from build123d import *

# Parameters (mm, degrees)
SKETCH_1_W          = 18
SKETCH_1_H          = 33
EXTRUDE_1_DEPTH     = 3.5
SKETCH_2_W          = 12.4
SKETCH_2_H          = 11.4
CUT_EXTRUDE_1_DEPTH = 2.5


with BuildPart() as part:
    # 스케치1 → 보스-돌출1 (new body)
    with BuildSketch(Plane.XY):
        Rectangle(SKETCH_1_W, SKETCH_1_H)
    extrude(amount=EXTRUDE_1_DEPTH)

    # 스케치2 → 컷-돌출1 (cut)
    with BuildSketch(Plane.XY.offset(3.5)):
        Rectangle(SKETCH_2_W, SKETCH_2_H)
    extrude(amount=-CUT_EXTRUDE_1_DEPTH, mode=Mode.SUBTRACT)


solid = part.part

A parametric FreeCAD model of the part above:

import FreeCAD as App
import Part
import Sketcher

V = App.Vector
Q = App.Units.Quantity

doc = App.newDocument("Part")
body = doc.addObject("PartDesign::Body", "Body")

# Sketch on XY plane
sketch1 = body.newObject("Sketcher::SketchObject", "Sketch")
sketch1.AttachmentSupport = (doc.getObject("XY_Plane"), [""])
sketch1.MapMode = "FlatFace"
sketch1.addGeometry([
    Part.LineSegment(V(-9, 16.5, 0), V(-9, -16.5, 0)),
    Part.LineSegment(V(-9, -16.5, 0), V(9, -16.5, 0)),
    Part.LineSegment(V(9, -16.5, 0), V(9, 16.5, 0)),
    Part.LineSegment(V(9, 16.5, 0), V(-9, 16.5, 0)),
], False)
sketch1.addConstraint([
    Sketcher.Constraint("Coincident", 0, 2, 1, 1),
    Sketcher.Constraint("Coincident", 1, 2, 2, 1),
    Sketcher.Constraint("Coincident", 2, 2, 3, 1),
    Sketcher.Constraint("Coincident", 3, 2, 0, 1),
    Sketcher.Constraint("Vertical", 0),
    Sketcher.Constraint("Horizontal", 1),
    Sketcher.Constraint("Vertical", 2),
    Sketcher.Constraint("Horizontal", 3),
    Sketcher.Constraint("Symmetric", 0, 2, 2, 2, -1, 1),
    Sketcher.Constraint("DistanceX", 1, 1, 1, 2, Q("18 mm")),
    Sketcher.Constraint("DistanceY", 0, 2, 0, 1, Q("33 mm")),
])
pad1 = body.newObject("PartDesign::Pad", "Pad")
pad1.Profile = sketch1
pad1.Length = 3.5

# Sketch on XY plane
sketch2 = body.newObject("Sketcher::SketchObject", "Sketch001")
sketch2.AttachmentSupport = (doc.getObject("XY_Plane"), [""])
sketch2.MapMode = "FlatFace"
sketch2.AttachmentOffset = App.Placement(V(0, 0, 3.5), App.Rotation())
sketch2.addGeometry([
    Part.LineSegment(V(-6.2, 5.7, 0), V(-6.2, -5.7, 0)),
    Part.LineSegment(V(-6.2, -5.7, 0), V(6.2, -5.7, 0)),
    Part.LineSegment(V(6.2, -5.7, 0), V(6.2, 5.7, 0)),
    Part.LineSegment(V(6.2, 5.7, 0), V(-6.2, 5.7, 0)),
], False)
sketch2.addConstraint([
    Sketcher.Constraint("Coincident", 0, 2, 1, 1),
    Sketcher.Constraint("Coincident", 1, 2, 2, 1),
    Sketcher.Constraint("Coincident", 2, 2, 3, 1),
    Sketcher.Constraint("Coincident", 3, 2, 0, 1),
    Sketcher.Constraint("Vertical", 0),
    Sketcher.Constraint("Horizontal", 1),
    Sketcher.Constraint("Vertical", 2),
    Sketcher.Constraint("Horizontal", 3),
    Sketcher.Constraint("Symmetric", 0, 2, 2, 2, -1, 1),
    Sketcher.Constraint("DistanceX", 1, 1, 1, 2, Q("12.4 mm")),
    Sketcher.Constraint("DistanceY", 0, 2, 0, 1, Q("11.4 mm")),
])
pocket1 = body.newObject("PartDesign::Pocket", "Pocket")
pocket1.Profile = sketch2
pocket1.Length = 2.5

doc.recompute()
